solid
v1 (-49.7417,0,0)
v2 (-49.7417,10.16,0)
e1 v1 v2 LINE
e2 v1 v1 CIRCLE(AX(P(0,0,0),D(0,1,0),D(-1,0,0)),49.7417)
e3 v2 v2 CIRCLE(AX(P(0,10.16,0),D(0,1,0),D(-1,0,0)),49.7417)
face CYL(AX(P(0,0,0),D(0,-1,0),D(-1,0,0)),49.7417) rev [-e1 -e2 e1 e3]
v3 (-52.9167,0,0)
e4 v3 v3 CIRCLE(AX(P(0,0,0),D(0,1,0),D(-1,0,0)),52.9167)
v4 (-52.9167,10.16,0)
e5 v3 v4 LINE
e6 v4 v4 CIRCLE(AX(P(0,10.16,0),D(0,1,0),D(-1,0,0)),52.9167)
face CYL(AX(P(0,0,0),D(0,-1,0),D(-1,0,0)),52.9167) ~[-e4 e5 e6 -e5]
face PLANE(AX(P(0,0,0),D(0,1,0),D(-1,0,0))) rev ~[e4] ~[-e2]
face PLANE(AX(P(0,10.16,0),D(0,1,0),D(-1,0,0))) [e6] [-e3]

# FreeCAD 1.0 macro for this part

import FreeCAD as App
import Part
import Sketcher
from FreeCAD import Vector
Q = App.Units.Quantity

doc = App.newDocument("Part")
body = doc.addObject("PartDesign::Body", "Body")

# Sketch on XZ plane
sketch1 = body.newObject("Sketcher::SketchObject", "Sketch")
sketch1.AttachmentSupport = (doc.getObject("XZ_Plane"), [""])
sketch1.MapMode = "FlatFace"
sketch1.addGeometry(Part.Circle(Vector(0, 0, 0), Vector(0, 0, 1), 53), False)
sketch1.addGeometry(Part.Circle(Vector(0, 0, 0), Vector(0, 0, 1), 50), False)
sketch1.addConstraint(Sketcher.Constraint("Coincident", 0, 3, -1, 1))
sketch1.addConstraint(Sketcher.Constraint("Coincident", 1, 3, -1, 1))
sketch1.addConstraint(Sketcher.Constraint("Diameter", 0, Q("105.8334 mm")))
sketch1.addConstraint(Sketcher.Constraint("Diameter", 1, Q("99.4834 mm")))
pad1 = body.newObject("PartDesign::Pad", "Pad")
pad1.Profile = sketch1
pad1.Length = Q("0.4 in")
pad1.Reversed = True

doc.recompute()
